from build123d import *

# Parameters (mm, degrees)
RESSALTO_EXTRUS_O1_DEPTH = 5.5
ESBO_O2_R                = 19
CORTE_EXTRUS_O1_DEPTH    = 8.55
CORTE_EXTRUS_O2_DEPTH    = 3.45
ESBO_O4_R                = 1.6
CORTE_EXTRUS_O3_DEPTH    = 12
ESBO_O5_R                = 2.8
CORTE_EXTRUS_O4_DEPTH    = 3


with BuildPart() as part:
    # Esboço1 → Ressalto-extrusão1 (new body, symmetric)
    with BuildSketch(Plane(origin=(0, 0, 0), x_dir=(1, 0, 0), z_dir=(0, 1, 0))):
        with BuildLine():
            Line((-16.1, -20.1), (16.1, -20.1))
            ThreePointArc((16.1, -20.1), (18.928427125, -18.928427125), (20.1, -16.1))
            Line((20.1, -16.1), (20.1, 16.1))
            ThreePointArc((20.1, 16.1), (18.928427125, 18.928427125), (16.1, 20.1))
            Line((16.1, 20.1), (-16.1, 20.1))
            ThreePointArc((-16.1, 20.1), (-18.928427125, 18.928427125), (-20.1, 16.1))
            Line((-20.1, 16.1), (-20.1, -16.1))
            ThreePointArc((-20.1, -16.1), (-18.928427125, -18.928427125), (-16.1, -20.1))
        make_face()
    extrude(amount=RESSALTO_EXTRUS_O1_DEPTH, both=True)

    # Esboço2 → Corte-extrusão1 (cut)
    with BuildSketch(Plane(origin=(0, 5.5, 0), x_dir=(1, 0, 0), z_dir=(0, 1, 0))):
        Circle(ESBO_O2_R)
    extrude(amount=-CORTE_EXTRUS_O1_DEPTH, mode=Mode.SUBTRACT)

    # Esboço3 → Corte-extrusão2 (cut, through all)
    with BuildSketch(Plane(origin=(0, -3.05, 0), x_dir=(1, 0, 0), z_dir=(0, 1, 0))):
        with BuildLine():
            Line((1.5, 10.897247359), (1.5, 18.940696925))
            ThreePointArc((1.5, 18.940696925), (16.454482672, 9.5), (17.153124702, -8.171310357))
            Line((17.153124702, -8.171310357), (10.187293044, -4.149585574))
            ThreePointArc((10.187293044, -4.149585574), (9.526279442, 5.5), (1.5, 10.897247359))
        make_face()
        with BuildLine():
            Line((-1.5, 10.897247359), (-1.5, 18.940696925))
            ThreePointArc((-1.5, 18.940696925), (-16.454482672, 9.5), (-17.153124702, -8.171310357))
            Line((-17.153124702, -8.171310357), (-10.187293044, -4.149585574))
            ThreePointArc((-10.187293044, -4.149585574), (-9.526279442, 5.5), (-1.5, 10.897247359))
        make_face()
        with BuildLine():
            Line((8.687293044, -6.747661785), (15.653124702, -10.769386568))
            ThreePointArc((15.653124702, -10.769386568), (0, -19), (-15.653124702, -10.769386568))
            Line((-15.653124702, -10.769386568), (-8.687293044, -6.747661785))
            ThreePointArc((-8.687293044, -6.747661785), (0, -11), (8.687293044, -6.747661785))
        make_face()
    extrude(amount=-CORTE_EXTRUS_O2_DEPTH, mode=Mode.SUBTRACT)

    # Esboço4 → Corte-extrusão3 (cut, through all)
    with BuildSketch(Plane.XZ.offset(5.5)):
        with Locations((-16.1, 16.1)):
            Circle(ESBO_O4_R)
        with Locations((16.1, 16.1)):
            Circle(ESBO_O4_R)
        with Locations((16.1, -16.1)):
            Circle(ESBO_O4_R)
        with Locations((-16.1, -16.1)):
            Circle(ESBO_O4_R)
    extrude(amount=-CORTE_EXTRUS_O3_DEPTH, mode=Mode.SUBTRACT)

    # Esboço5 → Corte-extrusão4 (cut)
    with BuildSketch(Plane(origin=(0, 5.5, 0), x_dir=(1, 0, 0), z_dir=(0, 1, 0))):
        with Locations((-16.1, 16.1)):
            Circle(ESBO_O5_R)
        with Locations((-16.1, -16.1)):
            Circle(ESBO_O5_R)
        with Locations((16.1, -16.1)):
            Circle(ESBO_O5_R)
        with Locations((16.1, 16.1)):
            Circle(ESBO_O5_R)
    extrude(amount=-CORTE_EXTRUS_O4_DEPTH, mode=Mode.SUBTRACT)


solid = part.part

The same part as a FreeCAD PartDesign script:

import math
import FreeCAD as App
import Part
import Sketcher
from FreeCAD import Vector
Q = App.Units.Quantity

doc = App.newDocument("Part")
body = doc.addObject("PartDesign::Body", "Body")

# Sketch on XZ plane
sketch1 = doc.addObject("Sketcher::SketchObject", "Sketch")
body.addObject(sketch1)
sketch1.AttachmentSupport = (doc.XZ_Plane, [""])
sketch1.MapMode = "FlatFace"
sketch1.addGeometry(Part.LineSegment(Vector(-16.1, 20.1, 0), Vector(16.1, 20.1, 0)), False)
sketch1.addGeometry(Part.ArcOfCircle(Part.Circle(Vector(16.1, 16.1, 0), Vector(0, 0, 1), 4), math.radians(0), math.radians(90)), False)
sketch1.addGeometry(Part.LineSegment(Vector(20.1, 16.1, 0), Vector(20.1, -16.1, 0)), False)
sketch1.addGeometry(Part.ArcOfCircle(Part.Circle(Vector(16.1, -16.1, 0), Vector(0, 0, 1), 4), math.radians(-90), math.radians(0)), False)
sketch1.addGeometry(Part.LineSegment(Vector(16.1, -20.1, 0), Vector(-16.1, -20.1, 0)), False)
sketch1.addGeometry(Part.ArcOfCircle(Part.Circle(Vector(-16.1, -16.1, 0), Vector(0, 0, 1), 4), math.radians(180), math.radians(270)), False)
sketch1.addGeometry(Part.LineSegment(Vector(-20.1, -16.1, 0), Vector(-20.1, 16.1, 0)), False)
sketch1.addGeometry(Part.ArcOfCircle(Part.Circle(Vector(-16.1, 16.1, 0), Vector(0, 0, 1), 4), math.radians(90), math.radians(180)), False)
sketch1.addConstraint(Sketcher.Constraint("Tangent", 0, 2, 1, 2))
sketch1.addConstraint(Sketcher.Constraint("Tangent", 1, 1, 2, 1))
sketch1.addConstraint(Sketcher.Constraint("Tangent", 2, 2, 3, 2))
sketch1.addConstraint(Sketcher.Constraint("Tangent", 3, 1, 4, 1))
sketch1.addConstraint(Sketcher.Constraint("Tangent", 4, 2, 5, 2))
sketch1.addConstraint(Sketcher.Constraint("Tangent", 5, 1, 6, 1))
sketch1.addConstraint(Sketcher.Constraint("Tangent", 6, 2, 7, 2))
sketch1.addConstraint(Sketcher.Constraint("Tangent", 7, 1, 0, 1))
sketch1.addConstraint(Sketcher.Constraint("Horizontal", 0))
sketch1.addConstraint(Sketcher.Constraint("Vertical", 2))
sketch1.addConstraint(Sketcher.Constraint("Horizontal", 4))
sketch1.addConstraint(Sketcher.Constraint("Vertical", 6))
sketch1.addConstraint(Sketcher.Constraint("Equal", 1, 3))
sketch1.addConstraint(Sketcher.Constraint("Equal", 3, 5))
sketch1.addConstraint(Sketcher.Constraint("Equal", 5, 7))
sketch1.addConstraint(Sketcher.Constraint("Symmetric", 1, 3, 5, 3, -1, 1))
sketch1.addConstraint(Sketcher.Constraint("Equal", 4, 2))
sketch1.addConstraint(Sketcher.Constraint("Radius", 1, 4.0))
sketch1.addConstraint(Sketcher.Constraint("DistanceX", 0, 1, 0, 2, 32.2))
pad1 = doc.addObject("PartDesign::Pad", "Pad")
body.addObject(pad1)
pad1.Profile = sketch1
pad1.Length = 11
pad1.Midplane = True

# Sketch on XZ plane
sketch2 = doc.addObject("Sketcher::SketchObject", "Sketch001")
body.addObject(sketch2)
sketch2.AttachmentSupport = (doc.XZ_Plane, [""])
sketch2.MapMode = "FlatFace"
sketch2.AttachmentOffset = App.Placement(Vector(0, 0, -5.5), App.Rotation())
sketch2.addGeometry(Part.Circle(Vector(0, 0, 0), Vector(0, 0, 1), 19), False)
sketch2.addConstraint(Sketcher.Constraint("Coincident", 0, 3, -1, 1))
sketch2.addConstraint(Sketcher.Constraint("Diameter", 0, 38.0))
pocket1 = doc.addObject("PartDesign::Pocket", "Pocket")
body.addObject(pocket1)
pocket1.Profile = sketch2
pocket1.Length = 8.55
pocket1.Reversed = True

# Sketch on XZ plane
sketch3 = doc.addObject("Sketcher::SketchObject", "Sketch002")
body.addObject(sketch3)
sketch3.AttachmentSupport = (doc.XZ_Plane, [""])
sketch3.MapMode = "FlatFace"
sketch3.AttachmentOffset = App.Placement(Vector(0, 0, 3.05), App.Rotation())
sketch3.addGeometry(Part.LineSegment(Vector(1.5, -18.940697, 0), Vector(1.5, -10.897247, 0)), False)
sketch3.addGeometry(Part.ArcOfCircle(Part.Circle(Vector(0, 0, 0), Vector(0, 0, 1), 11), math.radians(-82.16252), math.radians(22.16252)), False)
sketch3.addGeometry(Part.LineSegment(Vector(10.187293, 4.149586, 0), Vector(17.153125, 8.17131, 0)), False)
sketch3.addGeometry(Part.ArcOfCircle(Part.Circle(Vector(0, 0, 0), Vector(0, 0, 1), 19), math.radians(-85.471937), math.radians(25.471937)), False)
sketch3.addGeometry(Part.LineSegment(Vector(-1.5, -10.897247, 0), Vector(-1.5, -18.940697, 0)), False)
sketch3.addGeometry(Part.ArcOfCircle(Part.Circle(Vector(0, 0, 0), Vector(0, 0, 1), 19), math.radians(154.528063), math.radians(265.471937)), False)
sketch3.addGeometry(Part.LineSegment(Vector(-17.153125, 8.17131, 0), Vector(-10.187293, 4.149586, 0)), False)
sketch3.addGeometry(Part.ArcOfCircle(Part.Circle(Vector(0, 0, 0), Vector(0, 0, 1), 11), math.radians(157.83748), math.radians(262.16252)), False)
sketch3.addGeometry(Part.LineSegment(Vector(15.653125, 10.769387, 0), Vector(8.687293, 6.747662, 0)), False)
sketch3.addGeometry(Part.ArcOfCircle(Part.Circle(Vector(0, 0, 0), Vector(0, 0, 1), 11), math.radians(37.83748), math.radians(142.16252)), False)
sketch3.addGeometry(Part.LineSegment(Vector(-8.687293, 6.747662, 0), Vector(-15.653125, 10.769387, 0)), False)
sketch3.addGeometry(Part.ArcOfCircle(Part.Circle(Vector(0, 0, 0), Vector(0, 0, 1), 19), math.radians(34.528063), math.radians(145.471937)), False)
sketch3.addConstraint(Sketcher.Constraint("Coincident", 0, 2, 1, 1))
sketch3.addConstraint(Sketcher.Constraint("Coincident", 1, 2, 2, 1))
sketch3.addConstraint(Sketcher.Constraint("Coincident", 2, 2, 3, 2))
sketch3.addConstraint(Sketcher.Constraint("Coincident", 3, 1, 0, 1))
sketch3.addConstraint(Sketcher.Constraint("Coincident", 4, 2, 5, 2))
sketch3.addConstraint(Sketcher.Constraint("Coincident", 5, 1, 6, 1))
sketch3.addConstraint(Sketcher.Constraint("Coincident", 6, 2, 7, 1))
sketch3.addConstraint(Sketcher.Constraint("Coincident", 7, 2, 4, 1))
sketch3.addConstraint(Sketcher.Constraint("Coincident", 8, 2, 9, 1))
sketch3.addConstraint(Sketcher.Constraint("Coincident", 9, 2, 10, 1))
sketch3.addConstraint(Sketcher.Constraint("Coincident", 10, 2, 11, 2))
sketch3.addConstraint(Sketcher.Constraint("Coincident", 11, 1, 8, 1))
sketch3.addConstraint(Sketcher.Constraint("Vertical", 0))
sketch3.addConstraint(Sketcher.Constraint("Vertical", 4))
sketch3.addConstraint(Sketcher.Constraint("Coincident", 1, 3, -1, 1))
sketch3.addConstraint(Sketcher.Constraint("Coincident", 3, 3, -1, 1))
sketch3.addConstraint(Sketcher.Constraint("Coincident", 5, 3, -1, 1))
sketch3.addConstraint(Sketcher.Constraint("Coincident", 7, 3, -1, 1))
sketch3.addConstraint(Sketcher.Constraint("Coincident", 9, 3, -1, 1))
sketch3.addConstraint(Sketcher.Constraint("Coincident", 11, 3, -1, 1))
sketch3.addConstraint(Sketcher.Constraint("Equal", 3, 5))
sketch3.addConstraint(Sketcher.Constraint("Equal", 1, 7))
sketch3.addConstraint(Sketcher.Constraint("Equal", 7, 9))
sketch3.addConstraint(Sketcher.Constraint("Equal", 5, 11))
sketch3.addConstraint(Sketcher.Constraint("Parallel", 2, 8))
sketch3.addConstraint(Sketcher.Constraint("Parallel", 6, 10))
sketch3.addConstraint(Sketcher.Constraint("Horizontal", 3, 1, 4, 2))
sketch3.addConstraint(Sketcher.Constraint("Horizontal", 2, 2, 5, 1))
sketch3.addConstraint(Sketcher.Constraint("Horizontal", 1, 2, 6, 2))
sketch3.addConstraint(Sketcher.Constraint("Horizontal", 8, 2, 9, 2))
sketch3.addConstraint(Sketcher.Constraint("Equal", 6, 8))
sketch3.addConstraint(Sketcher.Constraint("Radius", 1, 11.0))
sketch3.addConstraint(Sketcher.Constraint("Radius", 3, 19.0))
sketch3.addConstraint(Sketcher.Constraint("Angle", 2, Q("30 deg")))
sketch3.addConstraint(Sketcher.Constraint("DistanceX", 4, 2, 3, 1, 3.0))
sketch3.addConstraint(Sketcher.Constraint("DistanceX", 8, 2, 1, 2, 1.5))
pocket2 = doc.addObject("PartDesign::Pocket", "Pocket001")
body.addObject(pocket2)
pocket2.Profile = sketch3
pocket2.Type = "ThroughAll"
pocket2.Reversed = True

# Sketch on XZ plane
sketch4 = doc.addObject("Sketcher::SketchObject", "Sketch003")
body.addObject(sketch4)
sketch4.AttachmentSupport = (doc.XZ_Plane, [""])
sketch4.MapMode = "FlatFace"
sketch4.AttachmentOffset = App.Placement(Vector(0, 0, 5.5), App.Rotation())
sketch4.addGeometry(Part.Circle(Vector(-16.1, 16.1, 0), Vector(0, 0, 1), 1.6), False)
sketch4.addGeometry(Part.Circle(Vector(16.1, 16.1, 0), Vector(0, 0, 1), 1.6), False)
sketch4.addGeometry(Part.Circle(Vector(16.1, -16.1, 0), Vector(0, 0, 1), 1.6), False)
sketch4.addGeometry(Part.Circle(Vector(-16.1, -16.1, 0), Vector(0, 0, 1), 1.6), False)
sketch4.addConstraint(Sketcher.Constraint("Equal", 0, 1))
sketch4.addConstraint(Sketcher.Constraint("Equal", 1, 2))
sketch4.addConstraint(Sketcher.Constraint("Equal", 2, 3))
sketch4.addConstraint(Sketcher.Constraint("Symmetric", 0, 3, 2, 3, -1, 1))
sketch4.addConstraint(Sketcher.Constraint("Symmetric", 1, 3, 3, 3, -1, 1))
sketch4.addConstraint(Sketcher.Constraint("Symmetric", 0, 3, 1, 3, -2))
sketch4.addConstraint(Sketcher.Constraint("Diameter", 0, 3.2))
sketch4.addConstraint(Sketcher.Constraint("DistanceX", 0, 3, -1, 1, 16.1))
sketch4.addConstraint(Sketcher.Constraint("DistanceY", -1, 1, 0, 3, 16.1))
pocket3 = doc.addObject("PartDesign::Pocket", "Pocket002")
body.addObject(pocket3)
pocket3.Profile = sketch4
pocket3.Type = "ThroughAll"

# Sketch on XZ plane
sketch5 = doc.addObject("Sketcher::SketchObject", "Sketch004")
body.addObject(sketch5)
sketch5.AttachmentSupport = (doc.XZ_Plane, [""])
sketch5.MapMode = "FlatFace"
sketch5.AttachmentOffset = App.Placement(Vector(0, 0, -5.5), App.Rotation())
sketch5.addGeometry(Part.Circle(Vector(-16.1, -16.1, 0), Vector(0, 0, 1), 2.8), False)
sketch5.addGeometry(Part.Circle(Vector(-16.1, 16.1, 0), Vector(0, 0, 1), 2.8), False)
sketch5.addGeometry(Part.Circle(Vector(16.1, 16.1, 0), Vector(0, 0, 1), 2.8), False)
sketch5.addGeometry(Part.Circle(Vector(16.1, -16.1, 0), Vector(0, 0, 1), 2.8), False)
sketch5.addConstraint(Sketcher.Constraint("Equal", 0, 1))
sketch5.addConstraint(Sketcher.Constraint("Equal", 1, 2))
sketch5.addConstraint(Sketcher.Constraint("Equal", 2, 3))
sketch5.addConstraint(Sketcher.Constraint("Symmetric", 0, 3, 2, 3, -1, 1))
sketch5.addConstraint(Sketcher.Constraint("Symmetric", 1, 3, 3, 3, -1, 1))
sketch5.addConstraint(Sketcher.Constraint("Symmetric", 1, 3, 2, 3, -2))
sketch5.addConstraint(Sketcher.Constraint("Diameter", 0, 5.6))
sketch5.addConstraint(Sketcher.Constraint("DistanceX", 0, 3, -1, 1, 16.1))
sketch5.addConstraint(Sketcher.Constraint("DistanceY", 0, 3, -1, 1, 16.1))
pocket4 = doc.addObject("PartDesign::Pocket", "Pocket003")
body.addObject(pocket4)
pocket4.Profile = sketch5
pocket4.Length = 3
pocket4.Reversed = True

doc.recompute()
